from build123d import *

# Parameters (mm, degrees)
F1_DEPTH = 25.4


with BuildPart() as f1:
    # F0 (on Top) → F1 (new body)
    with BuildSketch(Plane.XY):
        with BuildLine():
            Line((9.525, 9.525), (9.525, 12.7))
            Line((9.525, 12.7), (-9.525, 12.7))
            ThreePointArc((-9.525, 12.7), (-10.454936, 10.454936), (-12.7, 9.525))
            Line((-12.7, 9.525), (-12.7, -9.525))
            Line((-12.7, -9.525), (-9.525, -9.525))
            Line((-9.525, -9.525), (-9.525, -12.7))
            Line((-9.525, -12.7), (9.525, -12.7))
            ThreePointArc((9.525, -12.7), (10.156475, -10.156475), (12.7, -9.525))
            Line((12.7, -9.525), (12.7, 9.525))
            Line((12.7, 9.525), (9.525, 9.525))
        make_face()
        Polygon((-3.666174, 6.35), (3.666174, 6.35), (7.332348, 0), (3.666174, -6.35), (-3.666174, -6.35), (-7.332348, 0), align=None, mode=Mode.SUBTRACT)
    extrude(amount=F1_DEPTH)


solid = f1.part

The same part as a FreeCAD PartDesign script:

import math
import FreeCAD as App
import Part
import Sketcher

V = App.Vector
Q = App.Units.Quantity


def add_polygon(sketch, points):
    """Adds a closed chain of lines whose ends are joined by coincident constraints."""
    first, n = sketch.GeometryCount, len(points)
    for a, b in zip(points, points[1:] + points[:1]):
        sketch.addGeometry(Part.LineSegment(App.Vector(*a, 0), App.Vector(*b, 0)), False)
    for i in range(n):
        sketch.addConstraint(Sketcher.Constraint("Coincident", first + i, 2, first + (i + 1) % n, 1))

doc = App.newDocument("Part")
body = doc.addObject("PartDesign::Body", "Body")

sketch1 = doc.addObject("Sketcher::SketchObject", "Sketch")
body.addObject(sketch1)
sketch1.AttachmentSupport = (doc.XY_Plane, [""])
sketch1.MapMode = "FlatFace"
sketch1.addGeometry(Part.LineSegment(V(9.525, 9.525, 0), V(9.525, 12.7, 0)), False)
sketch1.addGeometry(Part.LineSegment(V(9.525, 12.7, 0), V(-9.525, 12.7, 0)), False)
sketch1.addGeometry(Part.ArcOfCircle(Part.Circle(V(-12.7, 12.7, 0), V(0, 0, 1), 3.175), math.radians(-89.999998), math.radians(-0.000002)), False)
sketch1.addGeometry(Part.LineSegment(V(-12.7, 9.525, 0), V(-12.7, -9.525, 0)), False)
sketch1.addGeometry(Part.LineSegment(V(-12.7, -9.525, 0), V(-9.525, -9.525, 0)), False)
sketch1.addGeometry(Part.LineSegment(V(-9.525, -9.525, 0), V(-9.525, -12.7, 0)), False)
sketch1.addGeometry(Part.LineSegment(V(-9.525, -12.7, 0), V(9.525, -12.7, 0)), False)
sketch1.addGeometry(Part.ArcOfCircle(Part.Circle(V(11.952526, -11.952526, 0), V(0, 0, 1), 2.54), math.radians(72.885577), math.radians(197.114423)), False)
sketch1.addGeometry(Part.LineSegment(V(12.7, -9.525, 0), V(12.7, 9.525, 0)), False)
sketch1.addGeometry(Part.LineSegment(V(12.7, 9.525, 0), V(9.525, 9.525, 0)), False)
add_polygon(sketch1, [(-7.332348, 0), (-3.666174, 6.35), (3.666174, 6.35), (7.332348, 0), (3.666174, -6.35), (-3.666174, -6.35)])
sketch1.addConstraint([
    Sketcher.Constraint("Coincident", 0, 2, 1, 1),
    Sketcher.Constraint("Coincident", 1, 2, 2, 2),
    Sketcher.Constraint("Coincident", 2, 1, 3, 1),
    Sketcher.Constraint("Coincident", 3, 2, 4, 1),
    Sketcher.Constraint("Coincident", 4, 2, 5, 1),
    Sketcher.Constraint("Coincident", 5, 2, 6, 1),
    Sketcher.Constraint("Coincident", 6, 2, 7, 2),
    Sketcher.Constraint("Coincident", 7, 1, 8, 1),
    Sketcher.Constraint("Coincident", 8, 2, 9, 1),
    Sketcher.Constraint("Coincident", 9, 2, 0, 1),
    Sketcher.Constraint("Vertical", 0),
    Sketcher.Constraint("Horizontal", 1),
    Sketcher.Constraint("Vertical", 3),
    Sketcher.Constraint("Horizontal", 4),
    Sketcher.Constraint("Vertical", 5),
    Sketcher.Constraint("Horizontal", 6),
    Sketcher.Constraint("Vertical", 8),
    Sketcher.Constraint("Horizontal", 9),
    Sketcher.Constraint("Horizontal", 11),
    Sketcher.Constraint("Horizontal", 14),
    Sketcher.Constraint("Symmetric", 0, 2, 5, 2, -1, 1),
    Sketcher.Constraint("Symmetric", 2, 1, 7, 1, -1, 1),
    Sketcher.Constraint("Symmetric", 10, 2, 13, 2, -1, 1),
    Sketcher.Constraint("Symmetric", 12, 2, 15, 2, -1, 1),
    Sketcher.Constraint("PointOnObject", 12, 2, -1),
    Sketcher.Constraint("Parallel", 12, 15),
    Sketcher.Constraint("Horizontal", 2, 3, 0, 2),
    Sketcher.Constraint("Horizontal", 4, 2, 7, 1),
    Sketcher.Constraint("Horizontal", 2, 1, 8, 2),
    Sketcher.Constraint("Vertical", 1, 2, 4, 2),
    Sketcher.Constraint("Vertical", 0, 2, 6, 2),
    Sketcher.Constraint("Vertical", 11, 2, 13, 2),
    Sketcher.Constraint("Equal", 9, 0),
    Sketcher.Constraint("Equal", 6, 3),
    Sketcher.Constraint("Radius", 7, Q("0.1 in")),
    Sketcher.Constraint("Angle", 10, Q("60.000001 deg")),
    Sketcher.Constraint("Radius", 2, Q("0.125 in")),
    Sketcher.Constraint("DistanceY", 5, 2, 1, 2, Q("1 in")),
    Sketcher.Constraint("DistanceY", 13, 2, 11, 2, Q("0.5 in")),
    Sketcher.Constraint("DistanceX", 11, 1, 11, 2, Q("7.332348 mm")),
])
pad1 = doc.addObject("PartDesign::Pad", "Pad")
body.addObject(pad1)
pad1.Profile = sketch1
pad1.Length = Q("1 in")

doc.recompute()
